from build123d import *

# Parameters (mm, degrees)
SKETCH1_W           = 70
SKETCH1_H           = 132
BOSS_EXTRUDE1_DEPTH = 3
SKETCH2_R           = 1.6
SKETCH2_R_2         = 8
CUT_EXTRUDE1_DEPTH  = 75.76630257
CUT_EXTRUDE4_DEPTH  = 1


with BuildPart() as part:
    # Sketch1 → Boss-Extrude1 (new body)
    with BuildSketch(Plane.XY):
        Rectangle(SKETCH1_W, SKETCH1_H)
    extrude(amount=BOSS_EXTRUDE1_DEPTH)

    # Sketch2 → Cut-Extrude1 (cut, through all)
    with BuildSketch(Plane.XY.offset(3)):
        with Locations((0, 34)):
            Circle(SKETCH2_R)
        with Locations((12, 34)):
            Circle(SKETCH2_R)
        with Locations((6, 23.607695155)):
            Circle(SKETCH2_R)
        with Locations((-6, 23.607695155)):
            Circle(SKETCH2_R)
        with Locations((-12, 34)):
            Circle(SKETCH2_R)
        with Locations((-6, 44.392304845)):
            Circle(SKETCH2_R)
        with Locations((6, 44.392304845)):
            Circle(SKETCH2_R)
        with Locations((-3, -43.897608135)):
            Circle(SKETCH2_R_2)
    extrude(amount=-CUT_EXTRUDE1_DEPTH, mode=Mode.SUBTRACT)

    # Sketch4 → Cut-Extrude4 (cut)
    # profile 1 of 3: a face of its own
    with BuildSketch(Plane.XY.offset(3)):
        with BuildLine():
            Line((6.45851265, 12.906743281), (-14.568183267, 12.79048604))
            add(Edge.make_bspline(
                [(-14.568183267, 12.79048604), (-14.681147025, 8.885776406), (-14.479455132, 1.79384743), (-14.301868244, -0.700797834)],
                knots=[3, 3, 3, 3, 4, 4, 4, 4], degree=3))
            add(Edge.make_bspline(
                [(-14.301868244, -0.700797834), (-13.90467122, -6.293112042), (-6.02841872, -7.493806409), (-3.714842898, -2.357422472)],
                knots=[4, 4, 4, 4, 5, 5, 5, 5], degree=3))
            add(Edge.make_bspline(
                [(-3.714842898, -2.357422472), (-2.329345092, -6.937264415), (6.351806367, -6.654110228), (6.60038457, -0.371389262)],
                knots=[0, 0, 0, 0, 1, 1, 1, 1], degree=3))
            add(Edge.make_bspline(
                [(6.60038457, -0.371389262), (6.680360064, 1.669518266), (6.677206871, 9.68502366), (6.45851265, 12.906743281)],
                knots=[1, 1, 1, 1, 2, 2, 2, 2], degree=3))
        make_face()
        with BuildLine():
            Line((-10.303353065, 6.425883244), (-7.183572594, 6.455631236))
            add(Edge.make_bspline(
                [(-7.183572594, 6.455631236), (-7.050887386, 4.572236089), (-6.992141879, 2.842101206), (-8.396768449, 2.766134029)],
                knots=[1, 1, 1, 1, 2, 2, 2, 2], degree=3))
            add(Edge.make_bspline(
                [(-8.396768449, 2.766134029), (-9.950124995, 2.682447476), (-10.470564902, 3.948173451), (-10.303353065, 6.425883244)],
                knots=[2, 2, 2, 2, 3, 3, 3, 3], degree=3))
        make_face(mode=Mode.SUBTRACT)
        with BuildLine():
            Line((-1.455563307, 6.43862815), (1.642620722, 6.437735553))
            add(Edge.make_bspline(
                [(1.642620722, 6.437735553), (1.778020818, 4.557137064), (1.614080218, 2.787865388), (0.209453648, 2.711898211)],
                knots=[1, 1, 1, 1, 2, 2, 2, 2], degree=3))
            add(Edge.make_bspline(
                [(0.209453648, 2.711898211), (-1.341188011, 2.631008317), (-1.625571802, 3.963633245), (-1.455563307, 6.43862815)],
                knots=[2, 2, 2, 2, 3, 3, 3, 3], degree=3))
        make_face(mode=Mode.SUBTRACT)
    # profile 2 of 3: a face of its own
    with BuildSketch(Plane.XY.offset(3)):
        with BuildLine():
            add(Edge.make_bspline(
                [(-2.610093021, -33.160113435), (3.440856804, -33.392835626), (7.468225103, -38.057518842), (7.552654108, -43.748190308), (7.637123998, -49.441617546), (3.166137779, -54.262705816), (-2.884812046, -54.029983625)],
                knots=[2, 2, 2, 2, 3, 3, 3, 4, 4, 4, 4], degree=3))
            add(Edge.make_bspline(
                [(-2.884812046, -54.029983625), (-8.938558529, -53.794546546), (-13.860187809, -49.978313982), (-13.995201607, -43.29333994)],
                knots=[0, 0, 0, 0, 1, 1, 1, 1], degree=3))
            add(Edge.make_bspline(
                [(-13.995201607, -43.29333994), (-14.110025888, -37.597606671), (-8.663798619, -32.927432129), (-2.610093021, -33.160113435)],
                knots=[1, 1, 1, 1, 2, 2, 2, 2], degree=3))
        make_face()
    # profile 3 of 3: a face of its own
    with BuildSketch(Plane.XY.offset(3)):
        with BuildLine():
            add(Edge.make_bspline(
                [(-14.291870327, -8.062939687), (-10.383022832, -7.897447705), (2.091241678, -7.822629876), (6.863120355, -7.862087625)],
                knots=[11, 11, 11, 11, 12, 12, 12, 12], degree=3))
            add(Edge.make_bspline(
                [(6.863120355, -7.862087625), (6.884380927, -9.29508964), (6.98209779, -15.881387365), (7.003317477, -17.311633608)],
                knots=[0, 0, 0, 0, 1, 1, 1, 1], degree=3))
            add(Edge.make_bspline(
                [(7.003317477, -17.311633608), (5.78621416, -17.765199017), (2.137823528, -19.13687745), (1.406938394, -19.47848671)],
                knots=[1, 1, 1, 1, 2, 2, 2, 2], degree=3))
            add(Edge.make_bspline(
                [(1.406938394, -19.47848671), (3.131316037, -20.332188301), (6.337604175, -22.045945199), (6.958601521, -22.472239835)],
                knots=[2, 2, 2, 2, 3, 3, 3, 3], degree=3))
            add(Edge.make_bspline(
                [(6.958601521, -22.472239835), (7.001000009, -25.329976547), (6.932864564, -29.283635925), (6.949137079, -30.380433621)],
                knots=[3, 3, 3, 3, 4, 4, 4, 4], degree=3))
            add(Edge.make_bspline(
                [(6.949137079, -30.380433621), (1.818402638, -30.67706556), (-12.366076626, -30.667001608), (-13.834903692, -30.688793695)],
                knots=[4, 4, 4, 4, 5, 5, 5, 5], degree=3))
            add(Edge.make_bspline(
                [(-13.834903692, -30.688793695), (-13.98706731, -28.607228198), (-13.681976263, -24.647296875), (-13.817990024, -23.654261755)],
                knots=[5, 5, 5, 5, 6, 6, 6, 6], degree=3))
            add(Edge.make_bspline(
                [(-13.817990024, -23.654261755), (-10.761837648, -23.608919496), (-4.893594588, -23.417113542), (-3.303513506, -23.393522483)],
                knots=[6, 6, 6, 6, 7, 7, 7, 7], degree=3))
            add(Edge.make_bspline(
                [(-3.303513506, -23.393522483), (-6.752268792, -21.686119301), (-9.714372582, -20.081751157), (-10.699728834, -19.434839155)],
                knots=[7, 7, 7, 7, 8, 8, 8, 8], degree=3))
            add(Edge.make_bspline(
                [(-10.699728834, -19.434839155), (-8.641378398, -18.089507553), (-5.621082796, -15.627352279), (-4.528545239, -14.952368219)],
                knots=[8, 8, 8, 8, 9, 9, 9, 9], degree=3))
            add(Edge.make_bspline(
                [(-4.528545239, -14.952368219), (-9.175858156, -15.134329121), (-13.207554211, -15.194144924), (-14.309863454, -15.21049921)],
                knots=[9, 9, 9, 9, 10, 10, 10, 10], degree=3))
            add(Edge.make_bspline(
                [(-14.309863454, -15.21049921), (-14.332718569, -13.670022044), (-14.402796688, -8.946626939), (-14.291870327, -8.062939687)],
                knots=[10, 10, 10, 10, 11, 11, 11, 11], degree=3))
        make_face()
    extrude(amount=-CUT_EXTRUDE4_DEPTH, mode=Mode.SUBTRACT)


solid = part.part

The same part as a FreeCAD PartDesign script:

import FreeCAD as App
import Part
import Sketcher
from FreeCAD import Vector
Q = App.Units.Quantity


def add_polygon(sketch, points):
    """Adds a closed chain of lines whose ends are joined by coincident constraints."""
    first, n = sketch.GeometryCount, len(points)
    for a, b in zip(points, points[1:] + points[:1]):
        sketch.addGeometry(Part.LineSegment(App.Vector(*a, 0), App.Vector(*b, 0)), False)
    for i in range(n):
        sketch.addConstraint(Sketcher.Constraint("Coincident", first + i, 2, first + (i + 1) % n, 1))

doc = App.newDocument("Part")
body = doc.addObject("PartDesign::Body", "Body")

# Sketch on XY plane
sketch1 = body.newObject("Sketcher::SketchObject", "Sketch")
sketch1.AttachmentSupport = (doc.getObject("XY_Plane"), [""])
sketch1.MapMode = "FlatFace"
add_polygon(sketch1, [(-35, 66), (-35, -66), (35, -66), (35, 66)])  # lines 0-3
sketch1.addConstraint([
    Sketcher.Constraint("Vertical", 0),
    Sketcher.Constraint("Horizontal", 1),
    Sketcher.Constraint("Vertical", 2),
    Sketcher.Constraint("Horizontal", 3),
    Sketcher.Constraint("Symmetric", 0, 2, 2, 2, -1, 1),
    Sketcher.Constraint("DistanceX", 1, 1, 1, 2, Q("70 mm")),
    Sketcher.Constraint("DistanceY", 0, 2, 0, 1, Q("132 mm")),
])
pad1 = body.newObject("PartDesign::Pad", "Pad")
pad1.Profile = sketch1
pad1.Length = 3

# Sketch on XY plane
sketch2 = body.newObject("Sketcher::SketchObject", "Sketch001")
sketch2.AttachmentSupport = (doc.getObject("XY_Plane"), [""])
sketch2.MapMode = "FlatFace"
sketch2.AttachmentOffset = App.Placement(Vector(0, 0, 3), App.Rotation())
sketch2.addGeometry([
    Part.Circle(Vector(0, 34, 0), Vector(0, 0, 1), 1.6),  # 0
    Part.Circle(Vector(12, 34, 0), Vector(0, 0, 1), 1.6),  # 1
    Part.Circle(Vector(6, 23.6, 0), Vector(0, 0, 1), 1.6),  # 2
    Part.Circle(Vector(-6, 23.6, 0), Vector(0, 0, 1), 1.6),  # 3
    Part.Circle(Vector(-12, 34, 0), Vector(0, 0, 1), 1.6),  # 4
    Part.Circle(Vector(-6, 44.4, 0), Vector(0, 0, 1), 1.6),  # 5
    Part.Circle(Vector(6, 44.4, 0), Vector(0, 0, 1), 1.6),  # 6
    Part.Circle(Vector(-3, -43.9, 0), Vector(0, 0, 1), 8),  # 7
], False)
sketch2.addConstraint([
    Sketcher.Constraint("Equal", 0, 1),
    Sketcher.Constraint("Equal", 1, 2),
    Sketcher.Constraint("Equal", 2, 3),
    Sketcher.Constraint("Equal", 3, 4),
    Sketcher.Constraint("Equal", 4, 5),
    Sketcher.Constraint("Equal", 5, 6),
    Sketcher.Constraint("Symmetric", 2, 3, 3, 3, -2),
    Sketcher.Constraint("Symmetric", 1, 3, 4, 3, -2),
    Sketcher.Constraint("Symmetric", 5, 3, 6, 3, -2),
    Sketcher.Constraint("PointOnObject", 0, 3, -2),
    Sketcher.Constraint("Horizontal", 0, 3, 1, 3),
    Sketcher.Constraint("Vertical", 3, 3, 5, 3),
    Sketcher.Constraint("Diameter", 7, Q("16 mm")),
    Sketcher.Constraint("Diameter", 0, Q("3.2 mm")),
    Sketcher.Constraint("DistanceY", -1, 1, 0, 3, Q("34 mm")),
    Sketcher.Constraint("DistanceX", -1, 1, 1, 3, Q("12 mm")),
    Sketcher.Constraint("DistanceX", -1, 1, 2, 3, Q("6 mm")),
    Sketcher.Constraint("DistanceX", 7, 3, -1, 1, Q("3 mm")),
    Sketcher.Constraint("DistanceY", 7, 3, -1, 1, Q("43.897608 mm")),
    Sketcher.Constraint("DistanceY", 3, 3, 5, 3, Q("20.78461 mm")),
    Sketcher.Constraint("DistanceY", -1, 1, 2, 3, Q("23.607695 mm")),
])
pocket1 = body.newObject("PartDesign::Pocket", "Pocket")
pocket1.Profile = sketch2
pocket1.Type = "ThroughAll"

# Sketch on XY plane
sketch3 = body.newObject("Sketcher::SketchObject", "Sketch002")
sketch3.AttachmentSupport = (doc.getObject("XY_Plane"), [""])
sketch3.MapMode = "FlatFace"
sketch3.AttachmentOffset = App.Placement(Vector(0, 0, 3), App.Rotation())
sketch3.addGeometry([
    Part.LineSegment(Vector(6.458513, 12.906743, 0), Vector(-14.568183, 12.790486, 0)),  # 0
    Part.BSplineCurve([Vector(-14.568183, 12.790486, 0), Vector(-14.681147, 8.885776, 0), Vector(-14.479455, 1.793847, 0), Vector(-14.301868, -0.700798, 0)], [4, 4], [3, 4], False, 3, [1, 1, 1, 1], False),  # 1
    Part.BSplineCurve([Vector(-14.301868, -0.700798, 0), Vector(-13.904671, -6.293112, 0), Vector(-6.028419, -7.493806, 0), Vector(-3.714843, -2.357422, 0)], [4, 4], [4, 5], False, 3, [1, 1, 1, 1], False),  # 2
    Part.BSplineCurve([Vector(-3.714843, -2.357422, 0), Vector(-2.329345, -6.937264, 0), Vector(6.351806, -6.65411, 0), Vector(6.600385, -0.371389, 0)], [4, 4], [0, 1], False, 3, [1, 1, 1, 1], False),  # 3
    Part.BSplineCurve([Vector(6.600385, -0.371389, 0), Vector(6.68036, 1.669518, 0), Vector(6.677207, 9.685024, 0), Vector(6.458513, 12.906743, 0)], [4, 4], [1, 2], False, 3, [1, 1, 1, 1], False),  # 4
    Part.BSplineCurve([Vector(0.209454, 2.711898, 0), Vector(-1.341188, 2.631008, 0), Vector(-1.625572, 3.963633, 0), Vector(-1.455563, 6.438628, 0)], [4, 4], [2, 3], False, 3, [1, 1, 1, 1], False),  # 5
    Part.LineSegment(Vector(-1.455563, 6.438628, 0), Vector(1.642621, 6.437736, 0)),  # 6
    Part.BSplineCurve([Vector(1.642621, 6.437736, 0), Vector(1.778021, 4.557137, 0), Vector(1.61408, 2.787865, 0), Vector(0.209454, 2.711898, 0)], [4, 4], [1, 2], False, 3, [1, 1, 1, 1], False),  # 7
    Part.BSplineCurve([Vector(-8.396768, 2.766134, 0), Vector(-9.950125, 2.682447, 0), Vector(-10.470565, 3.948173, 0), Vector(-10.303353, 6.425883, 0)], [4, 4], [2, 3], False, 3, [1, 1, 1, 1], False),  # 8
    Part.LineSegment(Vector(-10.303353, 6.425883, 0), Vector(-7.183573, 6.455631, 0)),  # 9
    Part.BSplineCurve([Vector(-7.183573, 6.455631, 0), Vector(-7.050887, 4.572236, 0), Vector(-6.992142, 2.842101, 0), Vector(-8.396768, 2.766134, 0)], [4, 4], [1, 2], False, 3, [1, 1, 1, 1], False),  # 10
    Part.BSplineCurve([Vector(-2.610093, -33.160113, 0), Vector(3.440857, -33.392836, 0), Vector(7.468225, -38.057519, 0), Vector(7.552654, -43.74819, 0), Vector(7.637124, -49.441618, 0), Vector(3.166138, -54.262706, 0), Vector(-2.884812, -54.029984, 0)], [4, 3, 4], [2, 3, 4], False, 3, [1, 1, 1, 1, 1, 1, 1], False),  # 11
    Part.BSplineCurve([Vector(-13.995202, -43.29334, 0), Vector(-14.110026, -37.597607, 0), Vector(-8.663799, -32.927432, 0), Vector(-2.610093, -33.160113, 0)], [4, 4], [1, 2], False, 3, [1, 1, 1, 1], False),  # 12
    Part.BSplineCurve([Vector(-2.884812, -54.029984, 0), Vector(-8.938559, -53.794547, 0), Vector(-13.860188, -49.978314, 0), Vector(-13.995202, -43.29334, 0)], [4, 4], [0, 1], False, 3, [1, 1, 1, 1], False),  # 13
    Part.BSplineCurve([Vector(-14.29187, -8.06294, 0), Vector(-10.383023, -7.897448, 0), Vector(2.091242, -7.82263, 0), Vector(6.86312, -7.862088, 0)], [4, 4], [11, 12], False, 3, [1, 1, 1, 1], False),  # 14
    Part.BSplineCurve([Vector(-14.309863, -15.210499, 0), Vector(-14.332719, -13.670022, 0), Vector(-14.402797, -8.946627, 0), Vector(-14.29187, -8.06294, 0)], [4, 4], [10, 11], False, 3, [1, 1, 1, 1], False),  # 15
    Part.BSplineCurve([Vector(-4.528545, -14.952368, 0), Vector(-9.175858, -15.134329, 0), Vector(-13.207554, -15.194145, 0), Vector(-14.309863, -15.210499, 0)], [4, 4], [9, 10], False, 3, [1, 1, 1, 1], False),  # 16
    Part.BSplineCurve([Vector(-10.699729, -19.434839, 0), Vector(-8.641378, -18.089508, 0), Vector(-5.621083, -15.627352, 0), Vector(-4.528545, -14.952368, 0)], [4, 4], [8, 9], False, 3, [1, 1, 1, 1], False),  # 17
    Part.BSplineCurve([Vector(-3.303514, -23.393522, 0), Vector(-6.752269, -21.686119, 0), Vector(-9.714373, -20.081751, 0), Vector(-10.699729, -19.434839, 0)], [4, 4], [7, 8], False, 3, [1, 1, 1, 1], False),  # 18
    Part.BSplineCurve([Vector(-13.81799, -23.654262, 0), Vector(-10.761838, -23.608919, 0), Vector(-4.893595, -23.417114, 0), Vector(-3.303514, -23.393522, 0)], [4, 4], [6, 7], False, 3, [1, 1, 1, 1], False),  # 19
    Part.BSplineCurve([Vector(-13.834904, -30.688794, 0), Vector(-13.987067, -28.607228, 0), Vector(-13.681976, -24.647297, 0), Vector(-13.81799, -23.654262, 0)], [4, 4], [5, 6], False, 3, [1, 1, 1, 1], False),  # 20
    Part.BSplineCurve([Vector(6.949137, -30.380434, 0), Vector(1.818403, -30.677066, 0), Vector(-12.366077, -30.667002, 0), Vector(-13.834904, -30.688794, 0)], [4, 4], [4, 5], False, 3, [1, 1, 1, 1], False),  # 21
    Part.BSplineCurve([Vector(6.958602, -22.47224, 0), Vector(7.001, -25.329977, 0), Vector(6.932865, -29.283636, 0), Vector(6.949137, -30.380434, 0)], [4, 4], [3, 4], False, 3, [1, 1, 1, 1], False),  # 22
    Part.BSplineCurve([Vector(1.406938, -19.478487, 0), Vector(3.131316, -20.332188, 0), Vector(6.337604, -22.045945, 0), Vector(6.958602, -22.47224, 0)], [4, 4], [2, 3], False, 3, [1, 1, 1, 1], False),  # 23
    Part.BSplineCurve([Vector(7.003317, -17.311634, 0), Vector(5.786214, -17.765199, 0), Vector(2.137824, -19.136877, 0), Vector(1.406938, -19.478487, 0)], [4, 4], [1, 2], False, 3, [1, 1, 1, 1], False),  # 24
    Part.BSplineCurve([Vector(6.86312, -7.862088, 0), Vector(6.884381, -9.29509, 0), Vector(6.982098, -15.881387, 0), Vector(7.003317, -17.311634, 0)], [4, 4], [0, 1], False, 3, [1, 1, 1, 1], False),  # 25
], False)
sketch3.addConstraint([
    Sketcher.Constraint("Block", 1),
    Sketcher.Constraint("Block", 2),
    Sketcher.Constraint("Block", 3),
    Sketcher.Constraint("Block", 4),
    Sketcher.Constraint("Block", 5),
    Sketcher.Constraint("Block", 7),
    Sketcher.Constraint("Block", 8),
    Sketcher.Constraint("Block", 10),
    Sketcher.Constraint("Block", 11),
    Sketcher.Constraint("Block", 12),
    Sketcher.Constraint("Block", 13),
    Sketcher.Constraint("Block", 14),
    Sketcher.Constraint("Block", 15),
    Sketcher.Constraint("Block", 16),
    Sketcher.Constraint("Block", 17),
    Sketcher.Constraint("Block", 18),
    Sketcher.Constraint("Block", 19),
    Sketcher.Constraint("Block", 20),
    Sketcher.Constraint("Block", 21),
    Sketcher.Constraint("Block", 22),
    Sketcher.Constraint("Block", 23),
    Sketcher.Constraint("Block", 24),
    Sketcher.Constraint("Block", 25),
    Sketcher.Constraint("Coincident", 0, 2, 1, 1),
    Sketcher.Constraint("Coincident", 4, 2, 0, 1),
    Sketcher.Constraint("Coincident", 5, 2, 6, 1),
    Sketcher.Constraint("Coincident", 6, 2, 7, 1),
    Sketcher.Constraint("Coincident", 8, 2, 9, 1),
    Sketcher.Constraint("Coincident", 9, 2, 10, 1),
])
pocket2 = body.newObject("PartDesign::Pocket", "Pocket001")
pocket2.Profile = sketch3
pocket2.Length = 1

doc.recompute()
